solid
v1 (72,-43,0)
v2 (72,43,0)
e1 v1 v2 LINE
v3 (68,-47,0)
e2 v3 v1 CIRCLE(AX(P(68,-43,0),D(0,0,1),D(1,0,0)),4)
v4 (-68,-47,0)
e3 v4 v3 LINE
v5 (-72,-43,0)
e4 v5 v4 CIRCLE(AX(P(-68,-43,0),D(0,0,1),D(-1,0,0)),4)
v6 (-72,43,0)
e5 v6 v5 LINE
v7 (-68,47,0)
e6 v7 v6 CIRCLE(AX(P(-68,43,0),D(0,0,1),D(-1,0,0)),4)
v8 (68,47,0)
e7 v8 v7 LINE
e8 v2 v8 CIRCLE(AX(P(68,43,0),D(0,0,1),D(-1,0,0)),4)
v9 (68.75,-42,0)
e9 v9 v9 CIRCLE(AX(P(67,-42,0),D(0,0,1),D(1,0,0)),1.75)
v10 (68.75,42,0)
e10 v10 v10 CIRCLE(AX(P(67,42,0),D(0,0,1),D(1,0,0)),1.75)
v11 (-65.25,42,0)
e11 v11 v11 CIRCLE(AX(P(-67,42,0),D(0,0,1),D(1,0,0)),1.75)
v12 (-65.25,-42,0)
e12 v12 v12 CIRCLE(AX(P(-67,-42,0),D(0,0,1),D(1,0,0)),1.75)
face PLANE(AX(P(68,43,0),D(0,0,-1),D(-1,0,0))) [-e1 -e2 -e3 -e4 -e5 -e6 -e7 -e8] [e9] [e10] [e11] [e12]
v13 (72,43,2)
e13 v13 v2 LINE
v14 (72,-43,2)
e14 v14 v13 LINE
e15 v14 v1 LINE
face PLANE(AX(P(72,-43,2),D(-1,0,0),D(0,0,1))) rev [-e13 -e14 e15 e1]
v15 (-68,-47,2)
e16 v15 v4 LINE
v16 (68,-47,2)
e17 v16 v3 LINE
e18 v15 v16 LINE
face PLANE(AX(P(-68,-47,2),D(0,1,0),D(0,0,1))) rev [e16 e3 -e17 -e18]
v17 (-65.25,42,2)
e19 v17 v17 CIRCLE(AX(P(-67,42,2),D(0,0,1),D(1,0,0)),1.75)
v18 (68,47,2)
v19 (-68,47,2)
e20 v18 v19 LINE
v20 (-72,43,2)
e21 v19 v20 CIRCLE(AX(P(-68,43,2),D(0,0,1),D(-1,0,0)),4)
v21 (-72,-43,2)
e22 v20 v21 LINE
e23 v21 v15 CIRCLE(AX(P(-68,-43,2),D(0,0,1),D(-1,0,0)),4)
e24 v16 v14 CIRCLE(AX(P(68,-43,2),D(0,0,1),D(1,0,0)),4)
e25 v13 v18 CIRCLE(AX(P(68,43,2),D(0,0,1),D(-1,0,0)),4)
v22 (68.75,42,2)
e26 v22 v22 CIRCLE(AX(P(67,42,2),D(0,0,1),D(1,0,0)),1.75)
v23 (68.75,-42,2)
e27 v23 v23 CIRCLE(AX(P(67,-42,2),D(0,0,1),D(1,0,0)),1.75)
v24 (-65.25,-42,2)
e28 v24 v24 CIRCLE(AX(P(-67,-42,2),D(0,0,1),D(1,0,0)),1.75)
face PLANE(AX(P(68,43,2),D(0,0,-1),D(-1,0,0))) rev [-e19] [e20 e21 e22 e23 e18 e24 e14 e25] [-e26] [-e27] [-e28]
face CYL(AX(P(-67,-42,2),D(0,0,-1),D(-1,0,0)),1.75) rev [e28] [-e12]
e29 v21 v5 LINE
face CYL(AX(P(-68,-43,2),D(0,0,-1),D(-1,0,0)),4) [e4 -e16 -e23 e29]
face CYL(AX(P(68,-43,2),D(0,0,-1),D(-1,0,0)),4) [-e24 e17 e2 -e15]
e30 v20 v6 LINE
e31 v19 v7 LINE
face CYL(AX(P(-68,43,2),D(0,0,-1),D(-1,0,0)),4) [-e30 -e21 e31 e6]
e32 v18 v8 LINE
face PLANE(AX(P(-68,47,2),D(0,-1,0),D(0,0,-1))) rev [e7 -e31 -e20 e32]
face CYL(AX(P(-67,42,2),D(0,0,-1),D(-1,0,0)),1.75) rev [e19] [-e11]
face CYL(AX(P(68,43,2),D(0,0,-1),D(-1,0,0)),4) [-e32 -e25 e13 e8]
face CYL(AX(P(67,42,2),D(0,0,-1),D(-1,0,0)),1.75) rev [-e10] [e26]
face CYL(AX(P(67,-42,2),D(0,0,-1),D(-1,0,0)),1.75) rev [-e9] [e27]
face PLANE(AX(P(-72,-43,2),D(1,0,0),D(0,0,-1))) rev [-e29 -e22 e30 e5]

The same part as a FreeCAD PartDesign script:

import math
import FreeCAD as App
import Part
import Sketcher
Q = App.Units.Quantity

doc = App.newDocument("Part")
body = doc.addObject("PartDesign::Body", "Body")

# Sketch on XY plane
sketch1 = doc.addObject("Sketcher::SketchObject", "Sketch")
body.addObject(sketch1)
sketch1.AttachmentSupport = (doc.XY_Plane, [""])
sketch1.MapMode = "FlatFace"
sketch1.addGeometry(Part.LineSegment(App.Vector(-68, -47, 0), App.Vector(68, -47, 0)), False)
sketch1.addGeometry(Part.ArcOfCircle(Part.Circle(App.Vector(68, -43, 0), App.Vector(0, 0, 1), 4), math.radians(-90), math.radians(0)), False)
sketch1.addGeometry(Part.LineSegment(App.Vector(72, -43, 0), App.Vector(72, 43, 0)), False)
sketch1.addGeometry(Part.ArcOfCircle(Part.Circle(App.Vector(68, 43, 0), App.Vector(0, 0, 1), 4), math.radians(0), math.radians(90)), False)
sketch1.addGeometry(Part.LineSegment(App.Vector(68, 47, 0), App.Vector(-68, 47, 0)), False)
sketch1.addGeometry(Part.ArcOfCircle(Part.Circle(App.Vector(-68, 43, 0), App.Vector(0, 0, 1), 4), math.radians(90), math.radians(180)), False)
sketch1.addGeometry(Part.LineSegment(App.Vector(-72, 43, 0), App.Vector(-72, -43, 0)), False)
sketch1.addGeometry(Part.ArcOfCircle(Part.Circle(App.Vector(-68, -43, 0), App.Vector(0, 0, 1), 4), math.radians(180), math.radians(270)), False)
sketch1.addGeometry(Part.Circle(App.Vector(-67, -42, 0), App.Vector(0, 0, 1), 1.8), False)
sketch1.addGeometry(Part.Circle(App.Vector(67, -42, 0), App.Vector(0, 0, 1), 1.8), False)
sketch1.addGeometry(Part.Circle(App.Vector(-67, 42, 0), App.Vector(0, 0, 1), 1.8), False)
sketch1.addGeometry(Part.Circle(App.Vector(67, 42, 0), App.Vector(0, 0, 1), 1.8), False)
sketch1.addConstraint(Sketcher.Constraint("Tangent", 0, 2, 1, 1))
sketch1.addConstraint(Sketcher.Constraint("Tangent", 1, 2, 2, 1))
sketch1.addConstraint(Sketcher.Constraint("Tangent", 2, 2, 3, 1))
sketch1.addConstraint(Sketcher.Constraint("Tangent", 3, 2, 4, 1))
sketch1.addConstraint(Sketcher.Constraint("Tangent", 4, 2, 5, 1))
sketch1.addConstraint(Sketcher.Constraint("Tangent", 5, 2, 6, 1))
sketch1.addConstraint(Sketcher.Constraint("Tangent", 6, 2, 7, 1))
sketch1.addConstraint(Sketcher.Constraint("Tangent", 7, 2, 0, 1))
sketch1.addConstraint(Sketcher.Constraint("Horizontal", 0))
sketch1.addConstraint(Sketcher.Constraint("Vertical", 2))
sketch1.addConstraint(Sketcher.Constraint("Horizontal", 4))
sketch1.addConstraint(Sketcher.Constraint("Vertical", 6))
sketch1.addConstraint(Sketcher.Constraint("Equal", 1, 3))
sketch1.addConstraint(Sketcher.Constraint("Equal", 3, 5))
sketch1.addConstraint(Sketcher.Constraint("Equal", 5, 7))
sketch1.addConstraint(Sketcher.Constraint("Equal", 8, 9))
sketch1.addConstraint(Sketcher.Constraint("Equal", 9, 10))
sketch1.addConstraint(Sketcher.Constraint("Equal", 10, 11))
sketch1.addConstraint(Sketcher.Constraint("Symmetric", 1, 3, 5, 3, -1, 1))
sketch1.addConstraint(Sketcher.Constraint("Symmetric", 9, 3, 10, 3, -1, 1))
sketch1.addConstraint(Sketcher.Constraint("Symmetric", 8, 3, 11, 3, -1, 1))
sketch1.addConstraint(Sketcher.Constraint("Symmetric", 8, 3, 9, 3, -2))
sketch1.addConstraint(Sketcher.Constraint("Radius", 1, Q("4 mm")))
sketch1.addConstraint(Sketcher.Constraint("Diameter", 8, Q("3.5 mm")))
sketch1.addConstraint(Sketcher.Constraint("DistanceX", 0, 1, 0, 2, Q("136 mm")))
sketch1.addConstraint(Sketcher.Constraint("DistanceY", 2, 1, 2, 2, Q("86 mm")))
sketch1.addConstraint(Sketcher.Constraint("DistanceX", 8, 3, -1, 1, Q("67 mm")))
sketch1.addConstraint(Sketcher.Constraint("DistanceY", 8, 3, -1, 1, Q("42 mm")))
pad1 = doc.addObject("PartDesign::Pad", "Pad")
body.addObject(pad1)
pad1.Profile = sketch1
pad1.Length = 2

doc.recompute()
